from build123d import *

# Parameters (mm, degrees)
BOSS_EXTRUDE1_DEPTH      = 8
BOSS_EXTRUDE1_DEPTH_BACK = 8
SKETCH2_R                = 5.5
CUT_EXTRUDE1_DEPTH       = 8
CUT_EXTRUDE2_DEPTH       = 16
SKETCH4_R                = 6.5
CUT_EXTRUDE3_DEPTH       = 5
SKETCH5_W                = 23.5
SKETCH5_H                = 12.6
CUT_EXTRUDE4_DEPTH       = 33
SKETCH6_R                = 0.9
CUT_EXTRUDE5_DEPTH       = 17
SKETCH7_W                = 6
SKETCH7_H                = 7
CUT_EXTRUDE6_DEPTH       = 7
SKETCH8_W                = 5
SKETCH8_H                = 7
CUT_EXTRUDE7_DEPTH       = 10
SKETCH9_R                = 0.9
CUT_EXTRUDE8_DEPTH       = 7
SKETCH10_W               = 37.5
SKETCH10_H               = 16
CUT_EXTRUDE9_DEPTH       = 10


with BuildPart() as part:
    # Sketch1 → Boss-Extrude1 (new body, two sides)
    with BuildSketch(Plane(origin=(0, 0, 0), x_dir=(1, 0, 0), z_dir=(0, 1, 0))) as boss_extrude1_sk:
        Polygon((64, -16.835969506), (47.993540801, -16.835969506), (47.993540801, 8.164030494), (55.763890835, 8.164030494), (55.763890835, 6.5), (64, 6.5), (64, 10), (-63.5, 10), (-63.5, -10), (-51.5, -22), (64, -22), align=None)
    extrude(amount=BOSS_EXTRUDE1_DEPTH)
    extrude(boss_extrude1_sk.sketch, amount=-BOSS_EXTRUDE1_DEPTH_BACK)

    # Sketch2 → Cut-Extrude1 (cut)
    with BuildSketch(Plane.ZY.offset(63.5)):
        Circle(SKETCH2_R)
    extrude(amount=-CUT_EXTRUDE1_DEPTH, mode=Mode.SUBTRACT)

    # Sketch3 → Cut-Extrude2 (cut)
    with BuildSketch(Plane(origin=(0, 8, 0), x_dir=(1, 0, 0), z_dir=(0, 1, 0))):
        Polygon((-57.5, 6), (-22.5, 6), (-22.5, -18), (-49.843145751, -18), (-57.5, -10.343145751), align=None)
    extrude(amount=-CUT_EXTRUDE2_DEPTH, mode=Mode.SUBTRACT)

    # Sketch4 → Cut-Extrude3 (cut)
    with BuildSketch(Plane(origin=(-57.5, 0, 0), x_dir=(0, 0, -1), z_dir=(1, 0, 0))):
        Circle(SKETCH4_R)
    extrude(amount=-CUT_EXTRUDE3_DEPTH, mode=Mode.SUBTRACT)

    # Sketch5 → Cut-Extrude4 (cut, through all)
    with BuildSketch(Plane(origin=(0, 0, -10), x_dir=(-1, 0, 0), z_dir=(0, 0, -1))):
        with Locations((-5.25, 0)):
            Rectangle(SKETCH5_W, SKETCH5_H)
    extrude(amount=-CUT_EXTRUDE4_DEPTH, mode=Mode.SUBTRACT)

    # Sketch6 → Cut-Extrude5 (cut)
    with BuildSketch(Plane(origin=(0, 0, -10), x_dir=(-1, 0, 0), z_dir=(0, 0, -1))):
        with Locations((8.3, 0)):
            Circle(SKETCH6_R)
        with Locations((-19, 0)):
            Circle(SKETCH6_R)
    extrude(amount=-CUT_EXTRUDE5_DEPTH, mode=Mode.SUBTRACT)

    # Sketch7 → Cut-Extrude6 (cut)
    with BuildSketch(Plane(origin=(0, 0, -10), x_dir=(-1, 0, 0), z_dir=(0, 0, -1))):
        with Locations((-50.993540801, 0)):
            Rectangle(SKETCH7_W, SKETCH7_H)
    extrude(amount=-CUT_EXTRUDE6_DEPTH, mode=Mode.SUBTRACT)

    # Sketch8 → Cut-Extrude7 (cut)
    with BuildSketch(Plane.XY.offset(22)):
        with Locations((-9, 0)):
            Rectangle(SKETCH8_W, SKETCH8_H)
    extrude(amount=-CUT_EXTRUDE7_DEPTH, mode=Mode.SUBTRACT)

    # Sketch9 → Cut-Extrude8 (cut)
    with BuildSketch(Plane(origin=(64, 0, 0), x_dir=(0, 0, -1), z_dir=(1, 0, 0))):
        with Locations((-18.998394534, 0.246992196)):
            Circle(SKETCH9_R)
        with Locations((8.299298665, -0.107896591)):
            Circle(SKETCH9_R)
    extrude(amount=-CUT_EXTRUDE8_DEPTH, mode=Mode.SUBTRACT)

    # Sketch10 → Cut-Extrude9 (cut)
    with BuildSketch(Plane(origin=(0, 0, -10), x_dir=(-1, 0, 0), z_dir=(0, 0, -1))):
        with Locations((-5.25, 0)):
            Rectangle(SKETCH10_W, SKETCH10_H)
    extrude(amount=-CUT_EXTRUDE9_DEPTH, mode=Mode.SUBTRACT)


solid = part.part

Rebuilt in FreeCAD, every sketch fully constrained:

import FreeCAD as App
import Part
import Sketcher

V = App.Vector
Q = App.Units.Quantity


def add_polygon(sketch, points):
    """Adds a closed chain of lines whose ends are joined by coincident constraints."""
    first, n = sketch.GeometryCount, len(points)
    for a, b in zip(points, points[1:] + points[:1]):
        sketch.addGeometry(Part.LineSegment(App.Vector(*a, 0), App.Vector(*b, 0)), False)
    for i in range(n):
        sketch.addConstraint(Sketcher.Constraint("Coincident", first + i, 2, first + (i + 1) % n, 1))

doc = App.newDocument("Part")
params = doc.addObject("Spreadsheet::Sheet", "Params")
for row, (alias, value) in enumerate([
    ("sketch1_height", "25 mm"),
    ("sketch1_height2", "20 mm"),
    ("sketch1_width", "127.5 mm"),
    ("sketch1_width2", "115.5 mm"),
    ("sketch1_height3", "3.5 mm"),
    ("pad1_length", "8 mm"),
    ("pad1_length2", "8 mm"),
    ("sketch2_diameter", "11 mm"),
    ("pocket1_length", "8 mm"),
    ("sketch3_width", "35 mm"),
    ("sketch3_height", "24 mm"),
    ("pocket2_length", "16 mm"),
    ("sketch4_diameter", "13 mm"),
    ("pocket3_length", "5 mm"),
    ("sketch5_width", "23.5 mm"),
    ("sketch5_height", "12.6 mm"),
    ("sketch6_diameter", "1.8 mm"),
    ("pocket5_length", "17 mm"),
    ("sketch7_width", "6 mm"),
    ("sketch7_height", "7 mm"),
    ("pocket6_length", "7 mm"),
    ("sketch8_width", "5 mm"),
    ("sketch8_height", "7 mm"),
    ("pocket7_length", "10 mm"),
    ("sketch9_diameter", "1.8 mm"),
    ("pocket8_length", "7 mm"),
    ("sketch10_height", "16 mm"),
    ("sketch10_width", "37.5 mm"),
    ("pocket9_length", "10 mm"),
], start=1):
    params.set(f"A{row}", alias)
    params.set(f"B{row}", "=" + value)
    params.setAlias(f"B{row}", alias)

body = doc.addObject("PartDesign::Body", "Body")

sketch1 = body.newObject("Sketcher::SketchObject", "Sketch")
sketch1.AttachmentSupport = (doc.getObject("XZ_Plane"), [""])
sketch1.MapMode = "FlatFace"
add_polygon(sketch1, [(64, 16.83597), (47.993541, 16.83597), (47.993541, -8.16403), (55.763891, -8.16403), (55.763891, -6.5), (64, -6.5), (64, -10), (-63.5, -10), (-63.5, 10), (-51.5, 22), (64, 22)])
sketch1.addConstraint(Sketcher.Constraint("Horizontal", 0))
sketch1.addConstraint(Sketcher.Constraint("Vertical", 1))
sketch1.addConstraint(Sketcher.Constraint("Horizontal", 2))
sketch1.addConstraint(Sketcher.Constraint("Vertical", 3))
sketch1.addConstraint(Sketcher.Constraint("Horizontal", 4))
sketch1.addConstraint(Sketcher.Constraint("Vertical", 5))
sketch1.addConstraint(Sketcher.Constraint("Horizontal", 6))
sketch1.addConstraint(Sketcher.Constraint("Vertical", 7))
sketch1.addConstraint(Sketcher.Constraint("Horizontal", 9))
sketch1.addConstraint(Sketcher.Constraint("Vertical", 10))
sketch1.addConstraint(Sketcher.Constraint("Vertical", 5, 2, 9, 2))
sketch1.addConstraint(Sketcher.Constraint("DistanceY", 1, 2, 1, 1, Q("25 mm")))
sketch1.addConstraint(Sketcher.Constraint("DistanceY", 7, 1, 7, 2, Q("20 mm")))
sketch1.addConstraint(Sketcher.Constraint("Angle", 8, Q("45 deg")))
sketch1.addConstraint(Sketcher.Constraint("DistanceX", 6, 2, 6, 1, Q("127.5 mm")))
sketch1.addConstraint(Sketcher.Constraint("DistanceX", 9, 1, 9, 2, Q("115.5 mm")))
sketch1.addConstraint(Sketcher.Constraint("DistanceY", 5, 2, 5, 1, Q("3.5 mm")))
sketch1.addConstraint(Sketcher.Constraint("DistanceX", -1, 1, 4, 2, Q("64 mm")))
sketch1.addConstraint(Sketcher.Constraint("DistanceY", 5, 2, -1, 1, Q("10 mm")))
sketch1.addConstraint(Sketcher.Constraint("DistanceX", 0, 2, 0, 1, Q("16.006459 mm")))
sketch1.addConstraint(Sketcher.Constraint("DistanceX", 2, 1, 2, 2, Q("7.77035 mm")))
sketch1.addConstraint(Sketcher.Constraint("DistanceY", 3, 1, 3, 2, Q("1.66403 mm")))
sketch1.setExpression("Constraints[22]", "Params.sketch1_height")
sketch1.setExpression("Constraints[23]", "Params.sketch1_height2")
sketch1.setExpression("Constraints[25]", "Params.sketch1_width")
sketch1.setExpression("Constraints[26]", "Params.sketch1_width2")
sketch1.setExpression("Constraints[27]", "Params.sketch1_height3")
pad1 = body.newObject("PartDesign::Pad", "Pad")
pad1.Profile = sketch1
pad1.Type = "TwoLengths"
pad1.setExpression("Length", "Params.pad1_length")
pad1.setExpression("Length2", "Params.pad1_length2")
pad1.Reversed = True

sketch2 = body.newObject("Sketcher::SketchObject", "Sketch001")
sketch2.AttachmentSupport = (doc.getObject("YZ_Plane"), [""])
sketch2.MapMode = "FlatFace"
sketch2.AttachmentOffset = App.Placement(V(0, 0, -63.5), App.Rotation())
sketch2.addGeometry(Part.Circle(V(0, 0, 0), V(0, 0, 1), 5.5), False)
sketch2.addConstraint(Sketcher.Constraint("Coincident", 0, 3, -1, 1))
sketch2.addConstraint(Sketcher.Constraint("Diameter", 0, Q("11 mm")))
sketch2.setExpression("Constraints[1]", "Params.sketch2_diameter")
pocket1 = body.newObject("PartDesign::Pocket", "Pocket")
pocket1.Profile = sketch2
pocket1.setExpression("Length", "Params.pocket1_length")
pocket1.Reversed = True

sketch3 = body.newObject("Sketcher::SketchObject", "Sketch002")
sketch3.AttachmentSupport = (doc.getObject("XZ_Plane"), [""])
sketch3.MapMode = "FlatFace"
sketch3.AttachmentOffset = App.Placement(V(0, 0, -8), App.Rotation())
add_polygon(sketch3, [(-22.5, -6), (-57.5, -6), (-57.5, 10.343146), (-49.843146, 18), (-22.5, 18)])
sketch3.addConstraint(Sketcher.Constraint("Horizontal", 0))
sketch3.addConstraint(Sketcher.Constraint("Vertical", 1))
sketch3.addConstraint(Sketcher.Constraint("Horizontal", 3))
sketch3.addConstraint(Sketcher.Constraint("Vertical", 4))
sketch3.addConstraint(Sketcher.Constraint("DistanceX", 0, 2, 0, 1, Q("35 mm")))
sketch3.addConstraint(Sketcher.Constraint("DistanceY", 4, 2, 4, 1, Q("24 mm")))
sketch3.addConstraint(Sketcher.Constraint("Angle", 2, Q("45 deg")))
sketch3.addConstraint(Sketcher.Constraint("DistanceY", 0, 2, -1, 1, Q("6 mm")))
sketch3.addConstraint(Sketcher.Constraint("DistanceX", 0, 2, -1, 1, Q("57.5 mm")))
sketch3.addConstraint(Sketcher.Constraint("DistanceX", 3, 1, 3, 2, Q("27.343146 mm")))
sketch3.setExpression("Constraints[9]", "Params.sketch3_width")
sketch3.setExpression("Constraints[10]", "Params.sketch3_height")
pocket2 = body.newObject("PartDesign::Pocket", "Pocket001")
pocket2.Profile = sketch3
pocket2.setExpression("Length", "Params.pocket2_length")
pocket2.Reversed = True

sketch4 = body.newObject("Sketcher::SketchObject", "Sketch003")
sketch4.AttachmentSupport = (doc.getObject("YZ_Plane"), [""])
sketch4.MapMode = "FlatFace"
sketch4.AttachmentOffset = App.Placement(V(0, 0, -57.5), App.Rotation())
sketch4.addGeometry(Part.Circle(V(0, 0, 0), V(0, 0, 1), 6.5), False)
sketch4.addConstraint(Sketcher.Constraint("Coincident", 0, 3, -1, 1))
sketch4.addConstraint(Sketcher.Constraint("Diameter", 0, Q("13 mm")))
sketch4.setExpression("Constraints[1]", "Params.sketch4_diameter")
pocket3 = body.newObject("PartDesign::Pocket", "Pocket002")
pocket3.Profile = sketch4
pocket3.setExpression("Length", "Params.pocket3_length")

sketch5 = body.newObject("Sketcher::SketchObject", "Sketch004")
sketch5.AttachmentSupport = (doc.getObject("XY_Plane"), [""])
sketch5.MapMode = "FlatFace"
sketch5.AttachmentOffset = App.Placement(V(0, 0, -10), App.Rotation())
add_polygon(sketch5, [(17, 6.3), (17, -6.3), (-6.5, -6.3), (-6.5, 6.3)])
sketch5.addConstraint(Sketcher.Constraint("Vertical", 0))
sketch5.addConstraint(Sketcher.Constraint("Horizontal", 1))
sketch5.addConstraint(Sketcher.Constraint("Vertical", 2))
sketch5.addConstraint(Sketcher.Constraint("Horizontal", 3))
sketch5.addConstraint(Sketcher.Constraint("DistanceX", 1, 2, 1, 1, Q("23.5 mm")))
sketch5.addConstraint(Sketcher.Constraint("DistanceY", 0, 2, 0, 1, Q("12.6 mm")))
sketch5.addConstraint(Sketcher.Constraint("DistanceX", -1, 1, 0, 2, Q("17 mm")))
sketch5.addConstraint(Sketcher.Constraint("DistanceY", 0, 2, -1, 1, Q("6.3 mm")))
sketch5.setExpression("Constraints[8]", "Params.sketch5_width")
sketch5.setExpression("Constraints[9]", "Params.sketch5_height")
pocket4 = body.newObject("PartDesign::Pocket", "Pocket003")
pocket4.Profile = sketch5
pocket4.Type = "ThroughAll"
pocket4.Reversed = True

sketch6 = body.newObject("Sketcher::SketchObject", "Sketch005")
sketch6.AttachmentSupport = (doc.getObject("XY_Plane"), [""])
sketch6.MapMode = "FlatFace"
sketch6.AttachmentOffset = App.Placement(V(0, 0, -10), App.Rotation())
sketch6.addGeometry(Part.Circle(V(-8.3, 0, 0), V(0, 0, 1), 0.9), False)
sketch6.addGeometry(Part.Circle(V(19, 0, 0), V(0, 0, 1), 0.9), False)
sketch6.addConstraint(Sketcher.Constraint("Equal", 0, 1))
sketch6.addConstraint(Sketcher.Constraint("PointOnObject", 0, 3, -1))
sketch6.addConstraint(Sketcher.Constraint("PointOnObject", 1, 3, -1))
sketch6.addConstraint(Sketcher.Constraint("Diameter", 0, Q("1.8 mm")))
sketch6.addConstraint(Sketcher.Constraint("DistanceX", -1, 1, 1, 3, Q("19 mm")))
sketch6.addConstraint(Sketcher.Constraint("DistanceX", 0, 3, -1, 1, Q("8.3 mm")))
sketch6.setExpression("Constraints[3]", "Params.sketch6_diameter")
pocket5 = body.newObject("PartDesign::Pocket", "Pocket004")
pocket5.Profile = sketch6
pocket5.setExpression("Length", "Params.pocket5_length")
pocket5.Reversed = True

sketch7 = body.newObject("Sketcher::SketchObject", "Sketch006")
sketch7.AttachmentSupport = (doc.getObject("XY_Plane"), [""])
sketch7.MapMode = "FlatFace"
sketch7.AttachmentOffset = App.Placement(V(0, 0, -10), App.Rotation())
add_polygon(sketch7, [(53.993541, 3.5), (53.993541, -3.5), (47.993541, -3.5), (47.993541, 3.5)])
sketch7.addConstraint(Sketcher.Constraint("Vertical", 0))
sketch7.addConstraint(Sketcher.Constraint("Horizontal", 1))
sketch7.addConstraint(Sketcher.Constraint("Vertical", 2))
sketch7.addConstraint(Sketcher.Constraint("Horizontal", 3))
sketch7.addConstraint(Sketcher.Constraint("DistanceX", 1, 2, 1, 1, Q("6 mm")))
sketch7.addConstraint(Sketcher.Constraint("DistanceY", 0, 2, 0, 1, Q("7 mm")))
sketch7.addConstraint(Sketcher.Constraint("DistanceY", 0, 2, -1, 1, Q("3.5 mm")))
sketch7.addConstraint(Sketcher.Constraint("DistanceX", -1, 1, 0, 2, Q("53.993541 mm")))
sketch7.setExpression("Constraints[8]", "Params.sketch7_width")
sketch7.setExpression("Constraints[9]", "Params.sketch7_height")
pocket6 = body.newObject("PartDesign::Pocket", "Pocket005")
pocket6.Profile = sketch7
pocket6.setExpression("Length", "Params.pocket6_length")
pocket6.Reversed = True

sketch8 = body.newObject("Sketcher::SketchObject", "Sketch007")
sketch8.AttachmentSupport = (doc.getObject("XY_Plane"), [""])
sketch8.MapMode = "FlatFace"
sketch8.AttachmentOffset = App.Placement(V(0, 0, 22), App.Rotation())
add_polygon(sketch8, [(-11.5, 3.5), (-11.5, -3.5), (-6.5, -3.5), (-6.5, 3.5)])
sketch8.addConstraint(Sketcher.Constraint("Vertical", 0))
sketch8.addConstraint(Sketcher.Constraint("Horizontal", 1))
sketch8.addConstraint(Sketcher.Constraint("Vertical", 2))
sketch8.addConstraint(Sketcher.Constraint("Horizontal", 3))
sketch8.addConstraint(Sketcher.Constraint("DistanceX", 1, 1, 1, 2, Q("5 mm")))
sketch8.addConstraint(Sketcher.Constraint("DistanceY", 0, 2, 0, 1, Q("7 mm")))
sketch8.addConstraint(Sketcher.Constraint("DistanceX", 0, 2, -1, 1, Q("11.5 mm")))
sketch8.addConstraint(Sketcher.Constraint("DistanceY", 0, 2, -1, 1, Q("3.5 mm")))
sketch8.setExpression("Constraints[8]", "Params.sketch8_width")
sketch8.setExpression("Constraints[9]", "Params.sketch8_height")
pocket7 = body.newObject("PartDesign::Pocket", "Pocket006")
pocket7.Profile = sketch8
pocket7.setExpression("Length", "Params.pocket7_length")

sketch9 = body.newObject("Sketcher::SketchObject", "Sketch008")
sketch9.AttachmentSupport = (doc.getObject("YZ_Plane"), [""])
sketch9.MapMode = "FlatFace"
sketch9.AttachmentOffset = App.Placement(V(0, 0, 64), App.Rotation())
sketch9.addGeometry(Part.Circle(V(0.246992, 18.998395, 0), V(0, 0, 1), 0.9), False)
sketch9.addGeometry(Part.Circle(V(-0.107897, -8.299299, 0), V(0, 0, 1), 0.9), False)
sketch9.addConstraint(Sketcher.Constraint("Equal", 0, 1))
sketch9.addConstraint(Sketcher.Constraint("Diameter", 0, Q("1.8 mm")))
sketch9.addConstraint(Sketcher.Constraint("DistanceY", 1, 3, -1, 1, Q("8.299299 mm")))
sketch9.addConstraint(Sketcher.Constraint("DistanceX", 1, 3, 0, 3, Q("0.354889 mm")))
sketch9.addConstraint(Sketcher.Constraint("DistanceX", -1, 1, 0, 3, Q("0.246992 mm")))
sketch9.addConstraint(Sketcher.Constraint("DistanceY", -1, 1, 0, 3, Q("18.998395 mm")))
sketch9.setExpression("Constraints[1]", "Params.sketch9_diameter")
pocket8 = body.newObject("PartDesign::Pocket", "Pocket007")
pocket8.Profile = sketch9
pocket8.setExpression("Length", "Params.pocket8_length")

sketch10 = body.newObject("Sketcher::SketchObject", "Sketch009")
sketch10.AttachmentSupport = (doc.getObject("XY_Plane"), [""])
sketch10.MapMode = "FlatFace"
sketch10.AttachmentOffset = App.Placement(V(0, 0, -10), App.Rotation())
add_polygon(sketch10, [(24, 8), (24, -8), (-13.5, -8), (-13.5, 8)])
sketch10.addConstraint(Sketcher.Constraint("Vertical", 0))
sketch10.addConstraint(Sketcher.Constraint("Horizontal", 1))
sketch10.addConstraint(Sketcher.Constraint("Vertical", 2))
sketch10.addConstraint(Sketcher.Constraint("Horizontal", 3))
sketch10.addConstraint(Sketcher.Constraint("DistanceY", 0, 2, 0, 1, Q("16 mm")))
sketch10.addConstraint(Sketcher.Constraint("DistanceX", 1, 2, 1, 1, Q("37.5 mm")))
sketch10.addConstraint(Sketcher.Constraint("DistanceX", -1, 1, 0, 2, Q("24 mm")))
sketch10.addConstraint(Sketcher.Constraint("DistanceY", 0, 2, -1, 1, Q("8 mm")))
sketch10.setExpression("Constraints[8]", "Params.sketch10_height")
sketch10.setExpression("Constraints[9]", "Params.sketch10_width")
pocket9 = body.newObject("PartDesign::Pocket", "Pocket008")
pocket9.Profile = sketch10
pocket9.setExpression("Length", "Params.pocket9_length")
pocket9.Reversed = True

doc.recompute()
